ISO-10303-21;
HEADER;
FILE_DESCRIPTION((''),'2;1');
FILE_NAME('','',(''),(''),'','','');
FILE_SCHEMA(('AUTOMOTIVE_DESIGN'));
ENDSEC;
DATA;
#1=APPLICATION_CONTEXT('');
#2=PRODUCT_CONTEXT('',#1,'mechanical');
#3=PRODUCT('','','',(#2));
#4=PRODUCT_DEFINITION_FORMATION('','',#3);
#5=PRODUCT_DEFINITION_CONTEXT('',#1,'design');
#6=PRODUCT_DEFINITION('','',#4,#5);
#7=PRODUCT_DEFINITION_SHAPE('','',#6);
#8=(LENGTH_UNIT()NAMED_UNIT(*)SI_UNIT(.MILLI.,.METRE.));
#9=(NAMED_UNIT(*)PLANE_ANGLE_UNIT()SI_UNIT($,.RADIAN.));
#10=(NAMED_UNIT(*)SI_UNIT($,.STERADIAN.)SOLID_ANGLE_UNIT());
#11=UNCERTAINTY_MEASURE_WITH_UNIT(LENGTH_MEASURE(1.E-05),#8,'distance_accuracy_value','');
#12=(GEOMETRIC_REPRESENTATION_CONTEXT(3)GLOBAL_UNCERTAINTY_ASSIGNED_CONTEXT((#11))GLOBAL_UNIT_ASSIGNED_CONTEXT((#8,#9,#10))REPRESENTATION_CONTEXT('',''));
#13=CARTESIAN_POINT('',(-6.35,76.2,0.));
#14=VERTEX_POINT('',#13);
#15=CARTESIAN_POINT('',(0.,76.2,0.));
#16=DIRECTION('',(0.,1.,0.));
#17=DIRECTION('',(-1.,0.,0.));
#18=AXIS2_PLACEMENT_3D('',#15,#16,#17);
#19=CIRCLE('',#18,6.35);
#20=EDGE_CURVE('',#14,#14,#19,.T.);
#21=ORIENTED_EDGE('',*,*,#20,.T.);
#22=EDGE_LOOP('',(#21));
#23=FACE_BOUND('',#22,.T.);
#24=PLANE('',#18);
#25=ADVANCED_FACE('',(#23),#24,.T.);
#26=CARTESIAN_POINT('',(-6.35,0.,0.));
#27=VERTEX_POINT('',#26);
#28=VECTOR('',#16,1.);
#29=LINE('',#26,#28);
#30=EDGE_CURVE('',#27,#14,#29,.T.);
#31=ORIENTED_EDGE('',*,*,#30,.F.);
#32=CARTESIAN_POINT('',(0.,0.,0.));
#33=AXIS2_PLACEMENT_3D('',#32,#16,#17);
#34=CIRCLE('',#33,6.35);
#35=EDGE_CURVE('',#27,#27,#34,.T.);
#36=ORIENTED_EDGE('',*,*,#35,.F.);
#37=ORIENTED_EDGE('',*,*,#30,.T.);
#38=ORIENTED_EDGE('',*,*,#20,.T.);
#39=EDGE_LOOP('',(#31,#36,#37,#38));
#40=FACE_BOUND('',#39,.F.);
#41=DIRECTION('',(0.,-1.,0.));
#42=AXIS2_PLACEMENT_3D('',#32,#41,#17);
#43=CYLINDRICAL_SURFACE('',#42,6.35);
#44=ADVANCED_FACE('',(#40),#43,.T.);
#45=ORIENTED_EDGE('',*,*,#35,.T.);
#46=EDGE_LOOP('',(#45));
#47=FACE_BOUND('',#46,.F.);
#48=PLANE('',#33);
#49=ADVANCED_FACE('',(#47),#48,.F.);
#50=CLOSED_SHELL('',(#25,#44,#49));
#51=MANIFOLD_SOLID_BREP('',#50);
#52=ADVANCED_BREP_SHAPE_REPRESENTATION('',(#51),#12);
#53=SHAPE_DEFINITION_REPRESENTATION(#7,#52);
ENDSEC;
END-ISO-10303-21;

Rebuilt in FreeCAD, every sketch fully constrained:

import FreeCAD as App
import Part
import Sketcher
Q = App.Units.Quantity

doc = App.newDocument("Part")
body = doc.addObject("PartDesign::Body", "Body")

# Sketch on XZ plane
sketch1 = body.newObject("Sketcher::SketchObject", "Sketch")
sketch1.AttachmentSupport = (doc.getObject("XZ_Plane"), [""])
sketch1.MapMode = "FlatFace"
sketch1.addGeometry(Part.Circle(App.Vector(0, 0, 0), App.Vector(0, 0, 1), 6), False)
sketch1.addConstraint(Sketcher.Constraint("Coincident", 0, 3, -1, 1))
sketch1.addConstraint(Sketcher.Constraint("Diameter", 0, Q("0.5 in")))
pad1 = body.newObject("PartDesign::Pad", "Pad")
pad1.Profile = sketch1
pad1.Length = Q("3 in")
pad1.Reversed = True

doc.recompute()
